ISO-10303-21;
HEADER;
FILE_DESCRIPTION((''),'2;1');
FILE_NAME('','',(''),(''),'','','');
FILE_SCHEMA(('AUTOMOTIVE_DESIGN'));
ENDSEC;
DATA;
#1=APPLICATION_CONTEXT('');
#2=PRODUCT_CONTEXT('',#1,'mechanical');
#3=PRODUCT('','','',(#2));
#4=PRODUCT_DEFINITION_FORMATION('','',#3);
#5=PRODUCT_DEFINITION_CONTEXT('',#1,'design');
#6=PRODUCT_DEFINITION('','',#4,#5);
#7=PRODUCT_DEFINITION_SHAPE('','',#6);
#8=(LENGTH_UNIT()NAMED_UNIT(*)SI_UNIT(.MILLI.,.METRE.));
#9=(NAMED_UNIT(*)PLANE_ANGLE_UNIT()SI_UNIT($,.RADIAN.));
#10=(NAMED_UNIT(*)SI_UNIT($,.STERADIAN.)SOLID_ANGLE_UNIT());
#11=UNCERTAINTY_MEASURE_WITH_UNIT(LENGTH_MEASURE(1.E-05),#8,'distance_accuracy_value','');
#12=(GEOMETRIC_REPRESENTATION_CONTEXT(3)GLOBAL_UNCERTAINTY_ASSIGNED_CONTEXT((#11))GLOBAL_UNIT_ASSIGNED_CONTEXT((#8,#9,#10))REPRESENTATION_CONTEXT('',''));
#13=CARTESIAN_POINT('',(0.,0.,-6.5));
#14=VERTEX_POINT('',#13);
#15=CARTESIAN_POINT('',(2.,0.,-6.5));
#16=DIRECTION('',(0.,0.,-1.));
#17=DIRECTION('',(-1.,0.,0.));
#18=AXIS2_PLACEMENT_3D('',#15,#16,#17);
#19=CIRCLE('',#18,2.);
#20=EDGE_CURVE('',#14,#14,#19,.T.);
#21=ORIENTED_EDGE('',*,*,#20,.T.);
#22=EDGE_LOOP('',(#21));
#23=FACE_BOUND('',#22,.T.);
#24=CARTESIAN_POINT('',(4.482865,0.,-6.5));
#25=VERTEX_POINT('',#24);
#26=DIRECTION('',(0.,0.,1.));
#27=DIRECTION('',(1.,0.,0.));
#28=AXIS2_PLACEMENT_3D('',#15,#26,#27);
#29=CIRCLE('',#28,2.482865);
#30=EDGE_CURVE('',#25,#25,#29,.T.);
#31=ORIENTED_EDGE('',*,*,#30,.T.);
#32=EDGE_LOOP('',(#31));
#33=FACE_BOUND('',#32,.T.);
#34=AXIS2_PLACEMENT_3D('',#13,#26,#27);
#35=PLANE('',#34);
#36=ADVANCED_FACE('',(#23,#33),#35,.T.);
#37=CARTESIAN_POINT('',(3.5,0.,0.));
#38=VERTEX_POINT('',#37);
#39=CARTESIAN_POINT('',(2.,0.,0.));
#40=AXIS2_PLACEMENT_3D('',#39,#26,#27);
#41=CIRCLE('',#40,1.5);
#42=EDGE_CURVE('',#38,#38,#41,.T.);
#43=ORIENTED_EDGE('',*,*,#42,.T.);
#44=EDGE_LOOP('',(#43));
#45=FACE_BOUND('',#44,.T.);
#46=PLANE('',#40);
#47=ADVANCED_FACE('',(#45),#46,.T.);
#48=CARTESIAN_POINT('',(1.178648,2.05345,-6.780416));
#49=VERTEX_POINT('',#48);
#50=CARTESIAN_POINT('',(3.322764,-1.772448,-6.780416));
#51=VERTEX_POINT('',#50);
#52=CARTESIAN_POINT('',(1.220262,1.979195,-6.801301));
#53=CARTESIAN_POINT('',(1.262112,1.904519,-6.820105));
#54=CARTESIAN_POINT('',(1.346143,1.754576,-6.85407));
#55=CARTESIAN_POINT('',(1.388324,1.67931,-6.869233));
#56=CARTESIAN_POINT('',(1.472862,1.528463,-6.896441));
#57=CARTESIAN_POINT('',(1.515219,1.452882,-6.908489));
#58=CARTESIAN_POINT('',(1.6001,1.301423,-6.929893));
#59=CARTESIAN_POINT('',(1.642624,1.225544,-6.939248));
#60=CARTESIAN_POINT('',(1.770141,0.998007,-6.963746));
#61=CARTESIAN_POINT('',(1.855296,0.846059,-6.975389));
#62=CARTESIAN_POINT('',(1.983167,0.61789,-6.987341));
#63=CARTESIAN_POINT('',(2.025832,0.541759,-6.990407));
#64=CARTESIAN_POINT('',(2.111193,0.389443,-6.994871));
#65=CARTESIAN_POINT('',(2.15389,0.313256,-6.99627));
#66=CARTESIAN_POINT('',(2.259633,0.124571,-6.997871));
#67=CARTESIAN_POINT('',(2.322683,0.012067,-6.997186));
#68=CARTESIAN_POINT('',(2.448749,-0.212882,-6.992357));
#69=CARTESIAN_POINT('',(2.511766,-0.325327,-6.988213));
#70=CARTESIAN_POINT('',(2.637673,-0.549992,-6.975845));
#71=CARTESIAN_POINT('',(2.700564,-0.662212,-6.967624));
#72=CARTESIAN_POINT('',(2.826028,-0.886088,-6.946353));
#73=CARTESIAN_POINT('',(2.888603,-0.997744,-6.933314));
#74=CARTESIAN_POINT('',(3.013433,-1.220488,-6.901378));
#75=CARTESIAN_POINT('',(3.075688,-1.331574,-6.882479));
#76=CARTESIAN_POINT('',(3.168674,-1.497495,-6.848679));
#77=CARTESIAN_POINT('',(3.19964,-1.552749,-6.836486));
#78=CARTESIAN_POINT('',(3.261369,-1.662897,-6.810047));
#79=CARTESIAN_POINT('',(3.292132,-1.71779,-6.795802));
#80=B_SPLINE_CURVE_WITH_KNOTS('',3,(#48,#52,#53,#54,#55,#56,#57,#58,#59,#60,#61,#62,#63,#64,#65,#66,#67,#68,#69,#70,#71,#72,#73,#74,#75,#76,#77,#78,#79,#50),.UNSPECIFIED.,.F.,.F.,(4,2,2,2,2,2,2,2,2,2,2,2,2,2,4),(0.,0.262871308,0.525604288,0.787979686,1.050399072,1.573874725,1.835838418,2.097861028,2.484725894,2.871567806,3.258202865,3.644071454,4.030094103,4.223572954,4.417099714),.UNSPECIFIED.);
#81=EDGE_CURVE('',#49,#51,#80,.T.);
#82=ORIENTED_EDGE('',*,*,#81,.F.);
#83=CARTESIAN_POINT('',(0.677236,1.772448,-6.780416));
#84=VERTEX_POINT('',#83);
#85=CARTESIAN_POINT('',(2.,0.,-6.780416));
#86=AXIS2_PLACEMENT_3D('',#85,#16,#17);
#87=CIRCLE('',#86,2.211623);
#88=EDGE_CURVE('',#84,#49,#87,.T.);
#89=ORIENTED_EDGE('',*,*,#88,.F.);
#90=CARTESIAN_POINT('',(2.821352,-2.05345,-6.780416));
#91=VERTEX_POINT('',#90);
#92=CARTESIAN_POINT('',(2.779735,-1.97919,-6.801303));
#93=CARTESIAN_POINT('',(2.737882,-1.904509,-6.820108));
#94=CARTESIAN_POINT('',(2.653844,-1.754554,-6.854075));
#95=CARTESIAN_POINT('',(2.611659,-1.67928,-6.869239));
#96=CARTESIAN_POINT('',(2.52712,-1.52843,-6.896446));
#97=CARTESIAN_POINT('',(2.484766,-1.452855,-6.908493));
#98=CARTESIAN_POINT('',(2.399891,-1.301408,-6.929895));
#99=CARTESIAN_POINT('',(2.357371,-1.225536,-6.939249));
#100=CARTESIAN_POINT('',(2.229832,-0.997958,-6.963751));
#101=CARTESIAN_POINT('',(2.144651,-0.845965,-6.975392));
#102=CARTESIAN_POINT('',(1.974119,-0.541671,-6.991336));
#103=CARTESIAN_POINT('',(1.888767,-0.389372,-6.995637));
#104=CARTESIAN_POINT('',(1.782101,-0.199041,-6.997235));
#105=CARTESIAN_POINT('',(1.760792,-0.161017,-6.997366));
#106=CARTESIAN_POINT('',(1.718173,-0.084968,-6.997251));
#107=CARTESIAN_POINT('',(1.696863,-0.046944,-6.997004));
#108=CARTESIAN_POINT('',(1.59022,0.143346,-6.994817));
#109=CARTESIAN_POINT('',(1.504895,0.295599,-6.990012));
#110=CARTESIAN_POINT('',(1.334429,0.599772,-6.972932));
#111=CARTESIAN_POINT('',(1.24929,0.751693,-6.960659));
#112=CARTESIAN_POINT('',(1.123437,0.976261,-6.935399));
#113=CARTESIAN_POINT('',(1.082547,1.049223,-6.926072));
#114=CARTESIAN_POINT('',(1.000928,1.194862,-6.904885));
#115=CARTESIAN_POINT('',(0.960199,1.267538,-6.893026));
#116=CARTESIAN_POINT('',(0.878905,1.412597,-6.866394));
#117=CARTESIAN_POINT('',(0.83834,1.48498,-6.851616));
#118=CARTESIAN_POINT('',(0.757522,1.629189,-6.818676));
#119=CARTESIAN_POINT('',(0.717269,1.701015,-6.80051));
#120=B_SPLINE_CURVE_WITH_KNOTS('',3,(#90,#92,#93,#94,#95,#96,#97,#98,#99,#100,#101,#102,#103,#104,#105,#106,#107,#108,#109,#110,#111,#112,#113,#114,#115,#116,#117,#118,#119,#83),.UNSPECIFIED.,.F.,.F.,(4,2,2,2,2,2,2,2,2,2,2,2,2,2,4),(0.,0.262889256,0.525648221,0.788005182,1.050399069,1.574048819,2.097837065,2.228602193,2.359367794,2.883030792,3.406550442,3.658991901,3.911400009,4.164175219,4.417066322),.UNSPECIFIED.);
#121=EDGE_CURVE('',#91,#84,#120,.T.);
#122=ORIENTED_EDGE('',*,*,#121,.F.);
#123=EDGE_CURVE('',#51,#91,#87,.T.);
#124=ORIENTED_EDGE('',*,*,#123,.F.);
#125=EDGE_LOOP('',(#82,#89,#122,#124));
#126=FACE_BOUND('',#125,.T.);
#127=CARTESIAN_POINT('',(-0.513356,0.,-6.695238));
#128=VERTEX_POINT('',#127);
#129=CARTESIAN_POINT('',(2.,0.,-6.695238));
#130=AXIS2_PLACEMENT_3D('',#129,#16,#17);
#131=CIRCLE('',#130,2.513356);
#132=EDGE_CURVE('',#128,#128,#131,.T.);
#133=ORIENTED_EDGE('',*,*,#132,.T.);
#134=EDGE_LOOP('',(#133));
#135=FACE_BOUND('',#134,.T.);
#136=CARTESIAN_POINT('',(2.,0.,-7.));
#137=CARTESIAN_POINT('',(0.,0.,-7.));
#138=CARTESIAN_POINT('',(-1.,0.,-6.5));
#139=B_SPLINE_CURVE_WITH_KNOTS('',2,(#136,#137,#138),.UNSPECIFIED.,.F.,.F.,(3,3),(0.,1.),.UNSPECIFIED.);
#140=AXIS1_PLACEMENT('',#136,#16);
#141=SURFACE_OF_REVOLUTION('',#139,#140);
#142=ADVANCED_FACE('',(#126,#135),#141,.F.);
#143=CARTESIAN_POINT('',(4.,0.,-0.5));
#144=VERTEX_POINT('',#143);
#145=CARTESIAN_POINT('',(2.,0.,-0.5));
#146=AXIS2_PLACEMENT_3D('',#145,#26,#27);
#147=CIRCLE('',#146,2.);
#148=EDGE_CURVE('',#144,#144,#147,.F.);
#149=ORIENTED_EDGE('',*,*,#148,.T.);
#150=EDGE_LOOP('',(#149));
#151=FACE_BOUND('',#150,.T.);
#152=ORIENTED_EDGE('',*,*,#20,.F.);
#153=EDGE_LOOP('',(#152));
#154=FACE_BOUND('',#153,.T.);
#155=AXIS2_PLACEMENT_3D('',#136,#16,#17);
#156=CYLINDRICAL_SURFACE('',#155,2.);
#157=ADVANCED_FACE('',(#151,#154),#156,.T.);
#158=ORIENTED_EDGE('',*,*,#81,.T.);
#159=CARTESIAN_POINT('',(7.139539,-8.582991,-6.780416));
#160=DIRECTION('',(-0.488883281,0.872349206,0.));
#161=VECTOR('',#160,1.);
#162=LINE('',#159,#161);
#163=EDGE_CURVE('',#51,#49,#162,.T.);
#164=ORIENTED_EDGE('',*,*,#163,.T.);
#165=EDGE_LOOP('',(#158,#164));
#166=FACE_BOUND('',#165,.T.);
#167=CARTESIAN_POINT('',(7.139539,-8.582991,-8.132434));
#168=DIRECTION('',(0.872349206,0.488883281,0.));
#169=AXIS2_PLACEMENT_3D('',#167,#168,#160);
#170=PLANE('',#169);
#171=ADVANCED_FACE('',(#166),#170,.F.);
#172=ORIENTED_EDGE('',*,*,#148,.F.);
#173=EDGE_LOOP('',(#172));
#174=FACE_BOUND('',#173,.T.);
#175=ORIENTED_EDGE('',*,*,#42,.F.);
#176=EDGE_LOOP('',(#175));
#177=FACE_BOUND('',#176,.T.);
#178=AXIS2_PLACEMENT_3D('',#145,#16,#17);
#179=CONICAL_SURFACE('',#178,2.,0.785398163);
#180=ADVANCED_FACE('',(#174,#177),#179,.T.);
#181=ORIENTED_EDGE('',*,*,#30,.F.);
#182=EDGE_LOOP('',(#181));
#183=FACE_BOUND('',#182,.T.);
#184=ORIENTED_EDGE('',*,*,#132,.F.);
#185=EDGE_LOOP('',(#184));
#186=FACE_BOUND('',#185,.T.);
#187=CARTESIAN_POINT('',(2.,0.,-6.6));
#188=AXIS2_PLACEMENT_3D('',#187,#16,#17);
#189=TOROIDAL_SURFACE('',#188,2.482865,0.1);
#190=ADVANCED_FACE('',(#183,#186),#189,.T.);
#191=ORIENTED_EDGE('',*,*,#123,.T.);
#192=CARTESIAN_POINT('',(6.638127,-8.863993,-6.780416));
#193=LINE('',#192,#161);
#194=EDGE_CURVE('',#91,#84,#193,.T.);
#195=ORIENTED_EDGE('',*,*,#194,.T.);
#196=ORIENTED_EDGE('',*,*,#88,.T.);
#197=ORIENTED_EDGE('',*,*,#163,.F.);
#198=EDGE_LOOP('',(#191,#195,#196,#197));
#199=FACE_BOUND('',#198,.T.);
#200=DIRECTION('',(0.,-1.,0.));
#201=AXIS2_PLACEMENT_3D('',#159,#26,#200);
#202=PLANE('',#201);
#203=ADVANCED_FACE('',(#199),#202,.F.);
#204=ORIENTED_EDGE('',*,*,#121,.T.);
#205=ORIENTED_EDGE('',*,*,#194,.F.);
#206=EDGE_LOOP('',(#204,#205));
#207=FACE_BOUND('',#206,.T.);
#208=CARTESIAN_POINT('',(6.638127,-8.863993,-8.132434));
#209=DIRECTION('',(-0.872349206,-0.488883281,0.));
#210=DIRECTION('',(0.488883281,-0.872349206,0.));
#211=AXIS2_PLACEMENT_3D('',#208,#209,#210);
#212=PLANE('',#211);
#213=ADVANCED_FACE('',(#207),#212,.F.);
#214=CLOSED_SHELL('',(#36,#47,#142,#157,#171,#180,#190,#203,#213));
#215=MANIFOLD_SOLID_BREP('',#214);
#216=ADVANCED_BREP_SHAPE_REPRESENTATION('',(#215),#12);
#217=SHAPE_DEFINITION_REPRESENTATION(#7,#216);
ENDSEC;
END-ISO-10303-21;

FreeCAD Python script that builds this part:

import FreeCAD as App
import Part
import Sketcher


def edges_at(feature, points):
    """Names of the edges that pass closest to the given points."""
    edges = feature.Shape.Edges
    near = lambda p: min(range(len(edges)), key=lambda i: edges[i].distToShape(Part.Vertex(*p))[0])
    return sorted({f"Edge{near(p) + 1}" for p in points})


def add_polygon(sketch, points):
    """Adds a closed chain of lines whose ends are joined by coincident constraints."""
    first, n = sketch.GeometryCount, len(points)
    for a, b in zip(points, points[1:] + points[:1]):
        sketch.addGeometry(Part.LineSegment(App.Vector(*a, 0), App.Vector(*b, 0)), False)
    for i in range(n):
        sketch.addConstraint(Sketcher.Constraint("Coincident", first + i, 2, first + (i + 1) % n, 1))

doc = App.newDocument("Part")
params = doc.addObject("Spreadsheet::Sheet", "Params")
for row, (alias, value) in enumerate([
    ("revolution_angle", "360 deg"),
    ("fillet_radius", "0.1 mm"),
    ("chamfer_size", "0.5 mm"),
    ("pocket1_length", "20 mm"),
], start=1):
    params.set(f"A{row}", alias)
    params.set(f"B{row}", "=" + value)
    params.setAlias(f"B{row}", alias)

body = doc.addObject("PartDesign::Body", "Body")

# Sketch on XZ plane
sketch1 = body.newObject("Sketcher::SketchObject", "Sketch")
sketch1.AttachmentSupport = (doc.getObject("XZ_Plane"), [""])
sketch1.MapMode = "FlatFace"
sketch1.addGeometry(Part.LineSegment(App.Vector(0, -6.5, 0), App.Vector(0, 0, 0)), False)
sketch1.addGeometry(Part.LineSegment(App.Vector(0, 0, 0), App.Vector(2, 0, 0)), False)
sketch1.addGeometry(Part.LineSegment(App.Vector(2, 0, 0), App.Vector(2, -7, 0)), False)
sketch1.addGeometry(Part.BSplineCurve([App.Vector(-1, -6.5, 0), App.Vector(0, -7, 0), App.Vector(2, -7, 0)], [3, 3], [0, 1], False, 2, [1, 1, 1], False), False)
sketch1.addGeometry(Part.LineSegment(App.Vector(-1, -6.5, 0), App.Vector(0, -6.5, 0)), False)
sketch1.addGeometry(Part.LineSegment(App.Vector(2, -7, 0), App.Vector(2, 0, 0)), True)  # axis
sketch1.addConstraint(Sketcher.Constraint("Block", 3))
sketch1.addConstraint(Sketcher.Constraint("Coincident", 0, 2, 1, 1))
sketch1.addConstraint(Sketcher.Constraint("Coincident", 1, 2, 2, 1))
sketch1.addConstraint(Sketcher.Constraint("Coincident", 2, 2, 3, 2))
sketch1.addConstraint(Sketcher.Constraint("Coincident", 3, 1, 4, 1))
sketch1.addConstraint(Sketcher.Constraint("Coincident", 4, 2, 0, 1))
sketch1.addConstraint(Sketcher.Constraint("Vertical", 0))
sketch1.addConstraint(Sketcher.Constraint("Horizontal", 1))
sketch1.addConstraint(Sketcher.Constraint("Vertical", 2))
sketch1.addConstraint(Sketcher.Constraint("Horizontal", 4))
sketch1.addConstraint(Sketcher.Constraint("Vertical", 5))
sketch1.addConstraint(Sketcher.Constraint("Coincident", 0, 2, -1, 1))
sketch1.addConstraint(Sketcher.Constraint("Coincident", 5, 1, 2, 2))
sketch1.addConstraint(Sketcher.Constraint("PointOnObject", 5, 2, -1))
revolution = body.newObject("PartDesign::Revolution", "Revolution")
revolution.Profile = sketch1
revolution.ReferenceAxis = (sketch1, ["Axis0"])
revolution.setExpression("Angle", "Params.revolution_angle")
doc.recompute()

fillet = body.newObject("PartDesign::Fillet", "Fillet")
fillet.Base = (revolution, edges_at(revolution, [(5, 0, -6.5)]))
fillet.setExpression("Radius", "Params.fillet_radius")
doc.recompute()

chamfer = body.newObject("PartDesign::Chamfer", "Chamfer")
chamfer.Base = (fillet, edges_at(fillet, [(4, 0, 0)]))
chamfer.setExpression("Size", "Params.chamfer_size")

# Sketch on an angled plane
sketch2 = body.newObject("Sketcher::SketchObject", "Sketch001")
sketch2.Placement = App.Placement(App.Vector(0.478014, -0.852954, 0), App.Rotation(App.Vector(-0.872349206, -0.488883281, 0), App.Vector(0, 0, 1), App.Vector(-0.488883281, 0.872349206, 0), "ZXY"))
add_polygon(sketch2, [(-2, -6.8), (-2, -8.1), (-1.5, -8.1), (-1.5, -6.8)])  # lines 0-3
sketch2.addConstraint(Sketcher.Constraint("Vertical", 0))
sketch2.addConstraint(Sketcher.Constraint("Horizontal", 1))
sketch2.addConstraint(Sketcher.Constraint("Vertical", 2))
sketch2.addConstraint(Sketcher.Constraint("Horizontal", 3))
sketch2.addConstraint(Sketcher.Constraint("DistanceY", 0, 2, 0, 1, 1.352019))
sketch2.addConstraint(Sketcher.Constraint("DistanceX", 1, 1, 1, 2, 0.574783))
sketch2.addConstraint(Sketcher.Constraint("DistanceX", 0, 2, -1, 1, 2.03209))
sketch2.addConstraint(Sketcher.Constraint("DistanceY", 0, 2, -1, 1, 8.132434))
pocket1 = body.newObject("PartDesign::Pocket", "Pocket")
pocket1.Profile = sketch2
pocket1.setExpression("Length", "Params.pocket1_length")
pocket1.Midplane = True

doc.recompute()
